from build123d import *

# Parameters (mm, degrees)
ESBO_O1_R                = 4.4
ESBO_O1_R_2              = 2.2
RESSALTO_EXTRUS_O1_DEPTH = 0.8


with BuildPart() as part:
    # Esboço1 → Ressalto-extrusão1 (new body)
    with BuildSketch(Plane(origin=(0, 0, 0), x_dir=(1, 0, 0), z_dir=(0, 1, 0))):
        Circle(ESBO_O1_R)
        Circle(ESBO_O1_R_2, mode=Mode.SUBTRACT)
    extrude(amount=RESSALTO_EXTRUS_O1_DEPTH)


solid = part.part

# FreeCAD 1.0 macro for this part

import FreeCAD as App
import Part
import Sketcher
from FreeCAD import Vector

doc = App.newDocument("Part")
params = doc.addObject("Spreadsheet::Sheet", "Params")
for row, (alias, value) in enumerate([
    ("sketch1_diameter", "8.8 mm"),
    ("sketch1_diameter2", "4.4 mm"),
    ("pad1_length", "0.8 mm"),
], start=1):
    params.set(f"A{row}", alias)
    params.set(f"B{row}", "=" + value)
    params.setAlias(f"B{row}", alias)

body = doc.addObject("PartDesign::Body", "Body")

# Sketch on XZ plane
sketch1 = body.newObject("Sketcher::SketchObject", "Sketch")
sketch1.AttachmentSupport = (doc.getObject("XZ_Plane"), [""])
sketch1.MapMode = "FlatFace"
sketch1.addGeometry(Part.Circle(Vector(0, 0, 0), Vector(0, 0, 1), 4.4), False)
sketch1.addGeometry(Part.Circle(Vector(0, 0, 0), Vector(0, 0, 1), 2.2), False)
sketch1.addConstraint(Sketcher.Constraint("Coincident", 0, 3, -1, 1))
sketch1.addConstraint(Sketcher.Constraint("Coincident", 1, 3, -1, 1))
sketch1.addConstraint(Sketcher.Constraint("Diameter", 0, 8.8))
sketch1.addConstraint(Sketcher.Constraint("Diameter", 1, 4.4))
sketch1.setExpression("Constraints[2]", "Params.sketch1_diameter")
sketch1.setExpression("Constraints[3]", "Params.sketch1_diameter2")
pad1 = body.newObject("PartDesign::Pad", "Pad")
pad1.Profile = sketch1
pad1.setExpression("Length", "Params.pad1_length")
pad1.Reversed = True

doc.recompute()
